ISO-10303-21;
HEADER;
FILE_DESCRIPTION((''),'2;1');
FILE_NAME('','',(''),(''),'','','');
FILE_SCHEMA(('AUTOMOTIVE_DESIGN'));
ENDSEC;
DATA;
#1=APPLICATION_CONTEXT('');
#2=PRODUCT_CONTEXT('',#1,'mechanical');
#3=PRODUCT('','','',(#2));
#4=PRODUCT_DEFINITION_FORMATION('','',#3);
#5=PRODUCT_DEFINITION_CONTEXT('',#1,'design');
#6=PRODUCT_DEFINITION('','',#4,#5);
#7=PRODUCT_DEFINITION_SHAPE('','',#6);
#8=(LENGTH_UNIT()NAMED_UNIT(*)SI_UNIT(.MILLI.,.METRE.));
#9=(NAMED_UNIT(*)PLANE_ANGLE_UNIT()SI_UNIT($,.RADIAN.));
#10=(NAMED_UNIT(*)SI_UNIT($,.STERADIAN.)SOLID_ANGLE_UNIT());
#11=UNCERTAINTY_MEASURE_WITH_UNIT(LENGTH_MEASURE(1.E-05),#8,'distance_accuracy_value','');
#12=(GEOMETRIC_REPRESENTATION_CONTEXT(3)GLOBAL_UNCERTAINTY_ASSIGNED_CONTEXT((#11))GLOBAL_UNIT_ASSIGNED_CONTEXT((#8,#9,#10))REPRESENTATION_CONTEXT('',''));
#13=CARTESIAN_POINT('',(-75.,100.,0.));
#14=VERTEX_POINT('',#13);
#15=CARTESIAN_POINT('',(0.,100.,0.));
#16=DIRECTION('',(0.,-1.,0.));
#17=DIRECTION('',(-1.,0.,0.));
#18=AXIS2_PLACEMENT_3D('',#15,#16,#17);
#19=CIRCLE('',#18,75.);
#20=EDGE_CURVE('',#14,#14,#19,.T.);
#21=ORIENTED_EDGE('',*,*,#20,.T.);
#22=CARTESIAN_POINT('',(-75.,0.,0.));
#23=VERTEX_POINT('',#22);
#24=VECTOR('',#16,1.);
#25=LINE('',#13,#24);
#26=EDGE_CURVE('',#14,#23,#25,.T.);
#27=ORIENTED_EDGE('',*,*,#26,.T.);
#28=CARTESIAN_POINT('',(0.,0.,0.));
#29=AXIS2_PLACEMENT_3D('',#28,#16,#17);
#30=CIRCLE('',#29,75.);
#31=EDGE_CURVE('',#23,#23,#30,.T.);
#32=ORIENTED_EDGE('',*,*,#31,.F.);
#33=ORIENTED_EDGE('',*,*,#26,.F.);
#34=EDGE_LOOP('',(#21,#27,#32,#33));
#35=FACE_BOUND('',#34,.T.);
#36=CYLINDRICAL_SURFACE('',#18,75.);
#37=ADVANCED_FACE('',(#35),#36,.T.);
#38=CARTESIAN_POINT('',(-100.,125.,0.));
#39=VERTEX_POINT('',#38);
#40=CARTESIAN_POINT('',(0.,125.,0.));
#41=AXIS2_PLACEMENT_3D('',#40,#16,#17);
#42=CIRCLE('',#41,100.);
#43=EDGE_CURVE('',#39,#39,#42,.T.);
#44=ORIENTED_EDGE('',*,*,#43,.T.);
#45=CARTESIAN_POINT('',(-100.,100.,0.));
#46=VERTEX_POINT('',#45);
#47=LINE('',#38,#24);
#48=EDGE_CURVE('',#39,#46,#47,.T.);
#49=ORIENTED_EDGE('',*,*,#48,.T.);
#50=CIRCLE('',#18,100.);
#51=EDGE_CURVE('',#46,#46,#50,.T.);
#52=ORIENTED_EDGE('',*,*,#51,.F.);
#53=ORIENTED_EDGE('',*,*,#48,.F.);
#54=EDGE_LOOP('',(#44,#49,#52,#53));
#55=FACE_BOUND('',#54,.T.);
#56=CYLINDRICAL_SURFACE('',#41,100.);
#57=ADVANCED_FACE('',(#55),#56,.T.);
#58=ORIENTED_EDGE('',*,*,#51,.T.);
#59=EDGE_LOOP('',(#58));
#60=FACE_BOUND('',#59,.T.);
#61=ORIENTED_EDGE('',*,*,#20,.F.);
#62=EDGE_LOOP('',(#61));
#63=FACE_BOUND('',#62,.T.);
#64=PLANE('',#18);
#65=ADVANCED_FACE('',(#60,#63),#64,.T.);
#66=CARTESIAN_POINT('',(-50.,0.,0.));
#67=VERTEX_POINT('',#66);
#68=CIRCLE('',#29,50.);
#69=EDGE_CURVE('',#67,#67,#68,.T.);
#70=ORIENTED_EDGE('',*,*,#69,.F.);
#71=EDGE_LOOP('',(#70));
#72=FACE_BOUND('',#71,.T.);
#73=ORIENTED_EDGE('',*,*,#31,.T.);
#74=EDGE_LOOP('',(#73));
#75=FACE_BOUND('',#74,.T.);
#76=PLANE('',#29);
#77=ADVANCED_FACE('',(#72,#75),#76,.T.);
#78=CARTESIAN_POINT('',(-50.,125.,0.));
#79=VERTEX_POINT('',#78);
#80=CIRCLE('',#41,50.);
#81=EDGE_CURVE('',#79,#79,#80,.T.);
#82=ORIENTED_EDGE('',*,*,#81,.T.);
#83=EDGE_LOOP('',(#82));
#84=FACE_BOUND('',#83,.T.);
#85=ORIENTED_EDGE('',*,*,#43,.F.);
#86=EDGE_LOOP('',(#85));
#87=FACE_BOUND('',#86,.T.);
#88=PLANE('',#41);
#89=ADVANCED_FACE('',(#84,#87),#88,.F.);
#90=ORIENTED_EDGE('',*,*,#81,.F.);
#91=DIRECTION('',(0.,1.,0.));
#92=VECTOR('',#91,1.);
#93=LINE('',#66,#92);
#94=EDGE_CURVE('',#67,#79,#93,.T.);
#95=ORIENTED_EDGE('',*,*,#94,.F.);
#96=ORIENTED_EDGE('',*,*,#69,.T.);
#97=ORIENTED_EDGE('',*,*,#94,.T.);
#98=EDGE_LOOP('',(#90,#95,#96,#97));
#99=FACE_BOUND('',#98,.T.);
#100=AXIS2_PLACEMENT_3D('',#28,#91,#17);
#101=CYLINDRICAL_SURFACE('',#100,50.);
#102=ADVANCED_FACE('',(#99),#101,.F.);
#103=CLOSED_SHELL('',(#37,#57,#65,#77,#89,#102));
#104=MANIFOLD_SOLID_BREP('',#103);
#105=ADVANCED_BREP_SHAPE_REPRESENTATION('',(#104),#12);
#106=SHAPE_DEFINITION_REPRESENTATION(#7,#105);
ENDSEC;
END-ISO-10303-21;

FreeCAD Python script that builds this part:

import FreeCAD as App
import Part
import Sketcher

doc = App.newDocument("Part")
body = doc.addObject("PartDesign::Body", "Body")

# Sketch on XY plane
sketch1 = body.newObject("Sketcher::SketchObject", "Sketch")
sketch1.AttachmentSupport = (doc.getObject("XY_Plane"), [""])
sketch1.MapMode = "FlatFace"
sketch1.addGeometry([
    Part.LineSegment(App.Vector(-50, 0, 0), App.Vector(-50, 125, 0)),  # 0
    Part.LineSegment(App.Vector(-50, 125, 0), App.Vector(-100, 125, 0)),  # 1
    Part.LineSegment(App.Vector(-100, 125, 0), App.Vector(-100, 100, 0)),  # 2
    Part.LineSegment(App.Vector(-100, 100, 0), App.Vector(-75, 100, 0)),  # 3
    Part.LineSegment(App.Vector(-75, 100, 0), App.Vector(-75, 0, 0)),  # 4
    Part.LineSegment(App.Vector(-75, 0, 0), App.Vector(-50, 0, 0)),  # 5
], False)
sketch1.addConstraint([
    Sketcher.Constraint("Coincident", 0, 2, 1, 1),
    Sketcher.Constraint("Coincident", 1, 2, 2, 1),
    Sketcher.Constraint("Coincident", 2, 2, 3, 1),
    Sketcher.Constraint("Coincident", 3, 2, 4, 1),
    Sketcher.Constraint("Coincident", 4, 2, 5, 1),
    Sketcher.Constraint("Coincident", 5, 2, 0, 1),
    Sketcher.Constraint("Vertical", 0),
    Sketcher.Constraint("Horizontal", 1),
    Sketcher.Constraint("Vertical", 2),
    Sketcher.Constraint("Horizontal", 3),
    Sketcher.Constraint("Vertical", 4),
    Sketcher.Constraint("Horizontal", 5),
    Sketcher.Constraint("PointOnObject", 4, 2, -1),
    Sketcher.Constraint("Equal", 3, 5),
    Sketcher.Constraint("Equal", 5, 2),
    Sketcher.Constraint("DistanceX", 1, 2, 1, 1, 50.0),
    Sketcher.Constraint("DistanceY", 0, 1, 0, 2, 125.0),
    Sketcher.Constraint("DistanceX", 0, 2, -1, 1, 50.0),
])
revolution = body.newObject("PartDesign::Revolution", "Revolution")
revolution.Profile = sketch1
revolution.ReferenceAxis = (sketch1, ["V_Axis"])
revolution.Angle = 360

doc.recompute()
